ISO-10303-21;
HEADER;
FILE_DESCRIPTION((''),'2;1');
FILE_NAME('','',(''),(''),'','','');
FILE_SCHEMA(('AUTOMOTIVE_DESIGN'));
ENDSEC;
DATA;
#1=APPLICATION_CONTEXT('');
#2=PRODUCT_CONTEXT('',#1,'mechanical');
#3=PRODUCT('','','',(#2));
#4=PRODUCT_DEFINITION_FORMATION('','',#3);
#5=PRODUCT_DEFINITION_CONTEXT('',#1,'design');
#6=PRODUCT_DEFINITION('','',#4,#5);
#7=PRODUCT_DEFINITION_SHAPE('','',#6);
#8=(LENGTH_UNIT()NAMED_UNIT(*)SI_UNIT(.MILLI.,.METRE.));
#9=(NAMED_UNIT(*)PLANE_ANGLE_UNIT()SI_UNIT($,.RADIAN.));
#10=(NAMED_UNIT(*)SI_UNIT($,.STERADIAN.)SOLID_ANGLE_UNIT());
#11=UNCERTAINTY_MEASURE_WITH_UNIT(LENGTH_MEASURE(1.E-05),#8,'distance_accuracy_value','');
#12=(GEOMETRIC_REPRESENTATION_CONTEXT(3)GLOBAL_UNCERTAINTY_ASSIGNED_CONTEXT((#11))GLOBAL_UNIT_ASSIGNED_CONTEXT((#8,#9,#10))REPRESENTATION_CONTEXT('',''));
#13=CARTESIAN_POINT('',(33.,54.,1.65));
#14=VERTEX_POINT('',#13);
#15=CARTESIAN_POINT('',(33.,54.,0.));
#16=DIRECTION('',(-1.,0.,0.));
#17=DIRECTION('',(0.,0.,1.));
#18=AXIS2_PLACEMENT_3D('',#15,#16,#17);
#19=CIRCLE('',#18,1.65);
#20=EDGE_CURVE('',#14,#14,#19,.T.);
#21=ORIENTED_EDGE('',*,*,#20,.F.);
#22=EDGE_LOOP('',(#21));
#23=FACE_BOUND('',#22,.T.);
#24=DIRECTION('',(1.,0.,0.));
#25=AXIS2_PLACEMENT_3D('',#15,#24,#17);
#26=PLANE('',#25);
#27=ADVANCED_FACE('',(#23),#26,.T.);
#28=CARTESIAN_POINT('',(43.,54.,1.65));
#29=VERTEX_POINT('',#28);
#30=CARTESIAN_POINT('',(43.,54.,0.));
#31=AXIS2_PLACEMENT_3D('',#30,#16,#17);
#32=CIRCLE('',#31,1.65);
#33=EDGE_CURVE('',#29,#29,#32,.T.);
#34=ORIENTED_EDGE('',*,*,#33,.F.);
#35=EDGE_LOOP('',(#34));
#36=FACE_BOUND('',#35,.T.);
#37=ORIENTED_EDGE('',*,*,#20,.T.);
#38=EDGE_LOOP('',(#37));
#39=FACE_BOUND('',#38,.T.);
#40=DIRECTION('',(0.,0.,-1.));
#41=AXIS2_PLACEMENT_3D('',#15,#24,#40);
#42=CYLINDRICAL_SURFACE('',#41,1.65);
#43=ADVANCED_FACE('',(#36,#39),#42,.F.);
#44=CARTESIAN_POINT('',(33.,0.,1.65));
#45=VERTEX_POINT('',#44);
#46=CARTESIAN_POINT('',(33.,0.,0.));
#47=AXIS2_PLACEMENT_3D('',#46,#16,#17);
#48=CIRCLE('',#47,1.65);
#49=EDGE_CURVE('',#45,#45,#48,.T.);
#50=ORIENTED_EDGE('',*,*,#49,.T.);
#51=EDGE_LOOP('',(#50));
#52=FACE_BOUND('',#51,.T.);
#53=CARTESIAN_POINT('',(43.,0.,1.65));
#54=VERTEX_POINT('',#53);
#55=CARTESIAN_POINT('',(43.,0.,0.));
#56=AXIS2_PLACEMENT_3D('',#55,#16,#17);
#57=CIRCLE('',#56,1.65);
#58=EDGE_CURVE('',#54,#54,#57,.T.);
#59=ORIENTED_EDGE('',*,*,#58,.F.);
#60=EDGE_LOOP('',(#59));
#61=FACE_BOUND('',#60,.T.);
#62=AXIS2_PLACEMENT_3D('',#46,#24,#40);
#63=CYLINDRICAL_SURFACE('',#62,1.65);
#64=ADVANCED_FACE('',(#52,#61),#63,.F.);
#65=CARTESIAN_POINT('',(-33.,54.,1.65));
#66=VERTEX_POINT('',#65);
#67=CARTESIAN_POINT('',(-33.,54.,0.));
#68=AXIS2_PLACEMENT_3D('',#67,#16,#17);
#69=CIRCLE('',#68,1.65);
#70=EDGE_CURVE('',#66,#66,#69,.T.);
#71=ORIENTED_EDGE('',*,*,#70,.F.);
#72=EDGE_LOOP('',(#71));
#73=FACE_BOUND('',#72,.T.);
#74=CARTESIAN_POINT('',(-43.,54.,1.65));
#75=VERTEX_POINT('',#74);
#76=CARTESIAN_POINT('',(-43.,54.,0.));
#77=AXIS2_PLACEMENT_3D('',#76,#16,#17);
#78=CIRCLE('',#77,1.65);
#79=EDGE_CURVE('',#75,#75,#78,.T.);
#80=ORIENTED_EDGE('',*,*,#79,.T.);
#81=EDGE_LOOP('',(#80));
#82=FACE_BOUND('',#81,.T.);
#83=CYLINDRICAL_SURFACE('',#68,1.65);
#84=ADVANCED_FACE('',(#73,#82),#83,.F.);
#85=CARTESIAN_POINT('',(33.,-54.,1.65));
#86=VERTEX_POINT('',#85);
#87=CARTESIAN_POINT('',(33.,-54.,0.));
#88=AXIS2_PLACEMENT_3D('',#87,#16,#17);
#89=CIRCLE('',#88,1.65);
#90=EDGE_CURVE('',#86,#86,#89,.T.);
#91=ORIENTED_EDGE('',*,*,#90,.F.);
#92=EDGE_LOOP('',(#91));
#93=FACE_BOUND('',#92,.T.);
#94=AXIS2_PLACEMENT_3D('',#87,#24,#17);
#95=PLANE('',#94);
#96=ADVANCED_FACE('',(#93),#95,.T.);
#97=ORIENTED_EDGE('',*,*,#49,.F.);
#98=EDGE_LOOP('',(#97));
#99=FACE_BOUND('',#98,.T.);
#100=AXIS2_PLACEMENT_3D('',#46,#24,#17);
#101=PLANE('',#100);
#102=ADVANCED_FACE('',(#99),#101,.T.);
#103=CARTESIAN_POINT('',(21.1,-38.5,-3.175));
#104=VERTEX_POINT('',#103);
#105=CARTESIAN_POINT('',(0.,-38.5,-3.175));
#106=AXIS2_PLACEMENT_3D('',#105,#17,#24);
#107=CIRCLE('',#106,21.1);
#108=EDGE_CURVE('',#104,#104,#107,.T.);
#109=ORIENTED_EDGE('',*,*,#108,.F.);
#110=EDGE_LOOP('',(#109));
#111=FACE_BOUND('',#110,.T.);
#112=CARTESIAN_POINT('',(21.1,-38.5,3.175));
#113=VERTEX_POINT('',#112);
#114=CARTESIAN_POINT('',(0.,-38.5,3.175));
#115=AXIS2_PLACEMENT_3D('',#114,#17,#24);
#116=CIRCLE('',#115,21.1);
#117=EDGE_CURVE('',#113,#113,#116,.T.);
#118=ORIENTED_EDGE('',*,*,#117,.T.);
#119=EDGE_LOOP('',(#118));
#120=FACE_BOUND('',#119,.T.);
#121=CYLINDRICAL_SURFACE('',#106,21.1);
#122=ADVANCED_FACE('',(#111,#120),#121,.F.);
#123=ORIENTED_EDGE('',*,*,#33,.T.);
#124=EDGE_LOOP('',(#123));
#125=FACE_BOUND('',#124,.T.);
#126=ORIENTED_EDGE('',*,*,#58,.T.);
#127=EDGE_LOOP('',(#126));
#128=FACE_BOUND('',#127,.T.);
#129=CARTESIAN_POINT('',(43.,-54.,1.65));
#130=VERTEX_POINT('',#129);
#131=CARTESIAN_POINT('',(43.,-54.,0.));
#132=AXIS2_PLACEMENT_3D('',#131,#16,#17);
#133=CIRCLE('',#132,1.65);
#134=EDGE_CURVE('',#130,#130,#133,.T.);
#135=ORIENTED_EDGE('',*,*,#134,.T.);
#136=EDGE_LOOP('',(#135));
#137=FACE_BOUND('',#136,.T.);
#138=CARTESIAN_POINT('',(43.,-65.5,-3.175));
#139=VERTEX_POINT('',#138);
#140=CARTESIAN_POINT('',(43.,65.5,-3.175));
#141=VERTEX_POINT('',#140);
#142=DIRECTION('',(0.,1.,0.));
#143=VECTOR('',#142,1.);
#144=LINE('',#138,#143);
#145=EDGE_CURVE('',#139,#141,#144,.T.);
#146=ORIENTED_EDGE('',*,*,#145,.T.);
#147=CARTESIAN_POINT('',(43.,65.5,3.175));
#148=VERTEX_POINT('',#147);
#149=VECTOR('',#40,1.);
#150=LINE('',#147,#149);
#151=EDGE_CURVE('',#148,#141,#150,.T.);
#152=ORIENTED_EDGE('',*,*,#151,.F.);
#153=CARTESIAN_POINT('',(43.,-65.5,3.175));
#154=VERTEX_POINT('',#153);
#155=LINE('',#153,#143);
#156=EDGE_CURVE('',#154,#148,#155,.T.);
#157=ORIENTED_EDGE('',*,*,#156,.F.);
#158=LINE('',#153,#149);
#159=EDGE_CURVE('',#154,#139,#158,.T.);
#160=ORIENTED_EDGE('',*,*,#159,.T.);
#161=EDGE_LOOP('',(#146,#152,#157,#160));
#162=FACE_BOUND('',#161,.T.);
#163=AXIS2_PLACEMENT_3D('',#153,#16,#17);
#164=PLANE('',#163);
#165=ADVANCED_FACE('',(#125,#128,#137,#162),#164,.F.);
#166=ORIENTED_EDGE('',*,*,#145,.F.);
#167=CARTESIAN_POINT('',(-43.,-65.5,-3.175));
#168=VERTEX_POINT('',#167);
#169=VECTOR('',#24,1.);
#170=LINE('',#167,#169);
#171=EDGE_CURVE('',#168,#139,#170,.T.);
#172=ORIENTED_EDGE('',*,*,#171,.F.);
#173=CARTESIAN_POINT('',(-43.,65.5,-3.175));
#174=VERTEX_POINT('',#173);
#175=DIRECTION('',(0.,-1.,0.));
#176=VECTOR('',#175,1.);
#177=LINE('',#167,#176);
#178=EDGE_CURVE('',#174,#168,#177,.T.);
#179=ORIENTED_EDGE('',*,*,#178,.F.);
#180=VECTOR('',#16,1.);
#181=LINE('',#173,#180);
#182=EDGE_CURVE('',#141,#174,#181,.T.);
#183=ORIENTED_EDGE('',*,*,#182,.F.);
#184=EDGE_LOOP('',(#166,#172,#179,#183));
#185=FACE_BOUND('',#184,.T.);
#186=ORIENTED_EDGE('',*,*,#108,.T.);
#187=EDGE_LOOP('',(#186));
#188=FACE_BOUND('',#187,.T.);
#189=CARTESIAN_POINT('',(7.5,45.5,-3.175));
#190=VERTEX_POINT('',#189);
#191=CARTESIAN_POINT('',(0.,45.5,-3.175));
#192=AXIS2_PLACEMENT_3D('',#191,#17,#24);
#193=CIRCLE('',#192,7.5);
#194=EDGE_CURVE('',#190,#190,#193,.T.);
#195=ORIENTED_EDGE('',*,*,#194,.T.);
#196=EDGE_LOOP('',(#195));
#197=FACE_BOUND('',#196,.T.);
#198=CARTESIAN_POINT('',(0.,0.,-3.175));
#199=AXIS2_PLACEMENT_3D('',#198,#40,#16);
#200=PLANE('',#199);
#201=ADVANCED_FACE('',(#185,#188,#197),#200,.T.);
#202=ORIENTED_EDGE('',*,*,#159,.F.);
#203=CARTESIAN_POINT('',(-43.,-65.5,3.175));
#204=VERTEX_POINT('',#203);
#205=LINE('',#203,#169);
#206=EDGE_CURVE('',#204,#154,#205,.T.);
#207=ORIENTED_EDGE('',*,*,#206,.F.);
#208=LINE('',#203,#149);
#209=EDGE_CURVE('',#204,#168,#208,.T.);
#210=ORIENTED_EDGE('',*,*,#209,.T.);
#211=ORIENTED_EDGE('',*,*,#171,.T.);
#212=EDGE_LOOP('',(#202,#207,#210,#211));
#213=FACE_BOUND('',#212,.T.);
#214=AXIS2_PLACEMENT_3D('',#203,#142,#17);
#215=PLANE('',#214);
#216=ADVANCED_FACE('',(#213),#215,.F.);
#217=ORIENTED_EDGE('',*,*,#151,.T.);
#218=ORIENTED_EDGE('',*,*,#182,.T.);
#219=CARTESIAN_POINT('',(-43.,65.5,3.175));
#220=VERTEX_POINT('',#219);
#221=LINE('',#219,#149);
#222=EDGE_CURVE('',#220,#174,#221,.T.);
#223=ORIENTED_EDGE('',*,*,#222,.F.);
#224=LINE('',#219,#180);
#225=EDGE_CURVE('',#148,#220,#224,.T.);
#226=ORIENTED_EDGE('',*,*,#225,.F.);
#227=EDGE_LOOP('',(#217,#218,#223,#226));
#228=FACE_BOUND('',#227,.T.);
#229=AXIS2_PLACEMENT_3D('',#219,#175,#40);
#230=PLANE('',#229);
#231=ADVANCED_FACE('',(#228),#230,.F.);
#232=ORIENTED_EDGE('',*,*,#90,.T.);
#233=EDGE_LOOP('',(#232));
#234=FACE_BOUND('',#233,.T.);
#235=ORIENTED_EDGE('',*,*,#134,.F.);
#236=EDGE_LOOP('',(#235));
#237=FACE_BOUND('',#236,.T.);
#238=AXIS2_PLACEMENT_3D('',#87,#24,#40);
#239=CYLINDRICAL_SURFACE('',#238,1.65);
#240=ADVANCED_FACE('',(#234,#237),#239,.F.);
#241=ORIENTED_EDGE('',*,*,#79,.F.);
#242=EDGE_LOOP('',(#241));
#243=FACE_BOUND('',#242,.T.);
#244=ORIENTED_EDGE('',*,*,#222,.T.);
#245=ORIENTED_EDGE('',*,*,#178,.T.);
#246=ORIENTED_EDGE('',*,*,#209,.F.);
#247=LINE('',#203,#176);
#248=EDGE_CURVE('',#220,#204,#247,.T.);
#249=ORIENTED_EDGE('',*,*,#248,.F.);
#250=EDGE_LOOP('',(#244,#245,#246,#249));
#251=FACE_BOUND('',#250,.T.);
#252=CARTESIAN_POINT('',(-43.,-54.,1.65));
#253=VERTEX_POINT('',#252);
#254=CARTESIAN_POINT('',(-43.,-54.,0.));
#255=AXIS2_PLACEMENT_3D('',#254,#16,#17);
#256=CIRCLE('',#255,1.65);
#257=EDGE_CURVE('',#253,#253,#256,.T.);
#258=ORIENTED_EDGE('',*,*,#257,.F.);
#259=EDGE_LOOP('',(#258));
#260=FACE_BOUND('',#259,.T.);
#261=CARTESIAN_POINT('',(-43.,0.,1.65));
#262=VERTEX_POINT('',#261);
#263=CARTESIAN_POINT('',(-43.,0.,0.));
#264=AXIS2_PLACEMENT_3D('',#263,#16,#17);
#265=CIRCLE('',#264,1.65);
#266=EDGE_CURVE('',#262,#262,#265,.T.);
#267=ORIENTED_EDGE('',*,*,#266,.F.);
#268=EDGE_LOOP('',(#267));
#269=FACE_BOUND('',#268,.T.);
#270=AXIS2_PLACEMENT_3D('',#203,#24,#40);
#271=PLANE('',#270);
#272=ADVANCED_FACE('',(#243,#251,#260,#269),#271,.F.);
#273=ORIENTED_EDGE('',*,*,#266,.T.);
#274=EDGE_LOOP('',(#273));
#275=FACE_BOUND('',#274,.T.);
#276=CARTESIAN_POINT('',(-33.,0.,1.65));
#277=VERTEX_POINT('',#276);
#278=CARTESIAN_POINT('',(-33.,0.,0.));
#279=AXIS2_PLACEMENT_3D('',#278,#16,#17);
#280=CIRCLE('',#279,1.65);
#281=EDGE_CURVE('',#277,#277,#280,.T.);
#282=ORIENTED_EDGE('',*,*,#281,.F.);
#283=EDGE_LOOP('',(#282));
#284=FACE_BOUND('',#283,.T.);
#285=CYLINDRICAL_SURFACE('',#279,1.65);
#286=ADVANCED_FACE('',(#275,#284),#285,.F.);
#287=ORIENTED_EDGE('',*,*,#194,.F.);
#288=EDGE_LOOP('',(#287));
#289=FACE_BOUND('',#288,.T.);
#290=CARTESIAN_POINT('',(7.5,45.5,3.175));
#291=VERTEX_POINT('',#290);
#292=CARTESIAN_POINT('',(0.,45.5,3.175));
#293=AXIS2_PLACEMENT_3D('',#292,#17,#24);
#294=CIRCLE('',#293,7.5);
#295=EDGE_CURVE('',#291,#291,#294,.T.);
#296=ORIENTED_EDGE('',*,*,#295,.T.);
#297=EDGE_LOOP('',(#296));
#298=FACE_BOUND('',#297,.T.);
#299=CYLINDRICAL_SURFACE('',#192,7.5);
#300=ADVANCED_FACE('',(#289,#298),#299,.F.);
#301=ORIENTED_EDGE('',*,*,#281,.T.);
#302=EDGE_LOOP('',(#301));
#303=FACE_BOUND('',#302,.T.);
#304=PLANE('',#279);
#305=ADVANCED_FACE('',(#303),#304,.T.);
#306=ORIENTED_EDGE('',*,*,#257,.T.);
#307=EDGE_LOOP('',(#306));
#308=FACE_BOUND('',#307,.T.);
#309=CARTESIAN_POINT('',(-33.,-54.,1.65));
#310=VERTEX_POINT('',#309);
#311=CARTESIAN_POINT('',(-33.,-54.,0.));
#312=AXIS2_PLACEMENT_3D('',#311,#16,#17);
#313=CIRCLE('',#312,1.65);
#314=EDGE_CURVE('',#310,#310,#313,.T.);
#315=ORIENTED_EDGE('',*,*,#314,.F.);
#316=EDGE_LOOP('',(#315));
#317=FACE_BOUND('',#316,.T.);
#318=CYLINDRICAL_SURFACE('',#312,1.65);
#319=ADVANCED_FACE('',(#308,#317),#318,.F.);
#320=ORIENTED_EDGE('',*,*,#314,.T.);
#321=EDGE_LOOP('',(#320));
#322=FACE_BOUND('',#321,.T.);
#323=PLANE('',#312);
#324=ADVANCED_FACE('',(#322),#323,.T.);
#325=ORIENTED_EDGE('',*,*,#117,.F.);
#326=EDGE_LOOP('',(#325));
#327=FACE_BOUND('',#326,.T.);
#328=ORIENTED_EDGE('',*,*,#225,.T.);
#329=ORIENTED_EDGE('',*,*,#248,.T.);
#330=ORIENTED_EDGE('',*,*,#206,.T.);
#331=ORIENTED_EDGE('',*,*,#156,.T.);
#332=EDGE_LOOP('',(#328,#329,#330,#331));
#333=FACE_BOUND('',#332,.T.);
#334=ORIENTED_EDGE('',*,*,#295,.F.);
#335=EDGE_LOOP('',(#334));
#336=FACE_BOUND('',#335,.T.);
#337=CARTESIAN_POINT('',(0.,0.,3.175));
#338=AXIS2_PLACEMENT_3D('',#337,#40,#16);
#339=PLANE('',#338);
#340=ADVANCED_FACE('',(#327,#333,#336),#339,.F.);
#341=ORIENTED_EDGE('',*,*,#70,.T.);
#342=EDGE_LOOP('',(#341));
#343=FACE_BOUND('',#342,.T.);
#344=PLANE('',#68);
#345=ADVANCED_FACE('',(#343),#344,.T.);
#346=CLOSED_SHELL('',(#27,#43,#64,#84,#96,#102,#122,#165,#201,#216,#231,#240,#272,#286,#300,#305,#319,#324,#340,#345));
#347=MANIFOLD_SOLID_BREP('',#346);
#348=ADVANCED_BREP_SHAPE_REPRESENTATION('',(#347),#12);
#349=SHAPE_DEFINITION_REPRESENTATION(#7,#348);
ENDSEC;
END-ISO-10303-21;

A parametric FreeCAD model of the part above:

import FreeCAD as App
import Part
import Sketcher


def add_polygon(sketch, points):
    """Adds a closed chain of lines whose ends are joined by coincident constraints."""
    first, n = sketch.GeometryCount, len(points)
    for a, b in zip(points, points[1:] + points[:1]):
        sketch.addGeometry(Part.LineSegment(App.Vector(*a, 0), App.Vector(*b, 0)), False)
    for i in range(n):
        sketch.addConstraint(Sketcher.Constraint("Coincident", first + i, 2, first + (i + 1) % n, 1))

doc = App.newDocument("Part")
params = doc.addObject("Spreadsheet::Sheet", "Params")
for row, (alias, value) in enumerate([
    ("sketch1_width", "86 mm"),
    ("sketch1_height", "131 mm"),
    ("pad1_length", "6.35 mm"),
    ("sketch2_diameter", "3.3 mm"),
    ("pocket1_length", "10 mm"),
    ("sketch3_diameter", "15 mm"),
    ("sketch4_diameter", "42.2 mm"),
], start=1):
    params.set(f"A{row}", alias)
    params.set(f"B{row}", "=" + value)
    params.setAlias(f"B{row}", alias)

body = doc.addObject("PartDesign::Body", "Body")

# Sketch on XY plane
sketch1 = body.newObject("Sketcher::SketchObject", "Sketch")
sketch1.AttachmentSupport = (doc.getObject("XY_Plane"), [""])
sketch1.MapMode = "FlatFace"
add_polygon(sketch1, [(-43, 65.5), (-43, -65.5), (43, -65.5), (43, 65.5)])  # lines 0-3
sketch1.addConstraint(Sketcher.Constraint("Vertical", 0))
sketch1.addConstraint(Sketcher.Constraint("Horizontal", 1))
sketch1.addConstraint(Sketcher.Constraint("Vertical", 2))
sketch1.addConstraint(Sketcher.Constraint("Horizontal", 3))
sketch1.addConstraint(Sketcher.Constraint("Symmetric", 0, 2, 2, 2, -1, 1))
sketch1.addConstraint(Sketcher.Constraint("DistanceX", 1, 1, 1, 2, 86.0))
sketch1.addConstraint(Sketcher.Constraint("DistanceY", 0, 2, 0, 1, 131.0))
sketch1.setExpression("Constraints[9]", "Params.sketch1_width")
sketch1.setExpression("Constraints[10]", "Params.sketch1_height")
pad1 = body.newObject("PartDesign::Pad", "Pad")
pad1.Profile = sketch1
pad1.setExpression("Length", "Params.pad1_length")
pad1.Midplane = True

# Sketch on YZ plane
sketch2 = body.newObject("Sketcher::SketchObject", "Sketch001")
sketch2.AttachmentSupport = (doc.getObject("YZ_Plane"), [""])
sketch2.MapMode = "FlatFace"
sketch2.AttachmentOffset = App.Placement(App.Vector(0, 0, -43), App.Rotation())
sketch2.addGeometry(Part.Circle(App.Vector(54, 0, 0), App.Vector(0, 0, 1), 1.65), False)
sketch2.addGeometry(Part.Circle(App.Vector(-54, 0, 0), App.Vector(0, 0, 1), 1.65), False)
sketch2.addGeometry(Part.Circle(App.Vector(0, 0, 0), App.Vector(0, 0, 1), 1.65), False)
sketch2.addConstraint(Sketcher.Constraint("Coincident", 2, 3, -1, 1))
sketch2.addConstraint(Sketcher.Constraint("Equal", 0, 1))
sketch2.addConstraint(Sketcher.Constraint("Equal", 1, 2))
sketch2.addConstraint(Sketcher.Constraint("Symmetric", 0, 3, 1, 3, -1, 1))
sketch2.addConstraint(Sketcher.Constraint("PointOnObject", 0, 3, -1))
sketch2.addConstraint(Sketcher.Constraint("Diameter", 0, 3.3))
sketch2.addConstraint(Sketcher.Constraint("DistanceX", -1, 1, 0, 3, 54.0))
sketch2.setExpression("Constraints[5]", "Params.sketch2_diameter")
pocket1 = body.newObject("PartDesign::Pocket", "Pocket")
pocket1.Profile = sketch2
pocket1.setExpression("Length", "Params.pocket1_length")
pocket1.Reversed = True
doc.recompute()

mirrored = body.newObject("PartDesign::Mirrored", "Mirrored")
mirrored.Originals = [pocket1]
mirrored.MirrorPlane = (doc.getObject("YZ_Plane"), [""])
body.Tip = mirrored

# Sketch on XY plane
sketch3 = body.newObject("Sketcher::SketchObject", "Sketch002")
sketch3.AttachmentSupport = (doc.getObject("XY_Plane"), [""])
sketch3.MapMode = "FlatFace"
sketch3.AttachmentOffset = App.Placement(App.Vector(0, 0, 3.175), App.Rotation())
sketch3.addGeometry(Part.Circle(App.Vector(0, 45.5, 0), App.Vector(0, 0, 1), 7.5), False)
sketch3.addConstraint(Sketcher.Constraint("PointOnObject", 0, 3, -2))
sketch3.addConstraint(Sketcher.Constraint("Diameter", 0, 15.0))
sketch3.addConstraint(Sketcher.Constraint("DistanceY", -1, 1, 0, 3, 45.5))
sketch3.setExpression("Constraints[1]", "Params.sketch3_diameter")
pocket2 = body.newObject("PartDesign::Pocket", "Pocket001")
pocket2.Profile = sketch3
pocket2.Type = "ThroughAll"

# Sketch on XY plane
sketch4 = body.newObject("Sketcher::SketchObject", "Sketch003")
sketch4.AttachmentSupport = (doc.getObject("XY_Plane"), [""])
sketch4.MapMode = "FlatFace"
sketch4.AttachmentOffset = App.Placement(App.Vector(0, 0, 3.175), App.Rotation())
sketch4.addGeometry(Part.Circle(App.Vector(0, -38.5, 0), App.Vector(0, 0, 1), 21.1), False)
sketch4.addConstraint(Sketcher.Constraint("PointOnObject", 0, 3, -2))
sketch4.addConstraint(Sketcher.Constraint("Diameter", 0, 42.2))
sketch4.addConstraint(Sketcher.Constraint("DistanceY", 0, 3, -1, 1, 38.5))
sketch4.setExpression("Constraints[1]", "Params.sketch4_diameter")
pocket3 = body.newObject("PartDesign::Pocket", "Pocket002")
pocket3.Profile = sketch4
pocket3.Type = "ThroughAll"

doc.recompute()
